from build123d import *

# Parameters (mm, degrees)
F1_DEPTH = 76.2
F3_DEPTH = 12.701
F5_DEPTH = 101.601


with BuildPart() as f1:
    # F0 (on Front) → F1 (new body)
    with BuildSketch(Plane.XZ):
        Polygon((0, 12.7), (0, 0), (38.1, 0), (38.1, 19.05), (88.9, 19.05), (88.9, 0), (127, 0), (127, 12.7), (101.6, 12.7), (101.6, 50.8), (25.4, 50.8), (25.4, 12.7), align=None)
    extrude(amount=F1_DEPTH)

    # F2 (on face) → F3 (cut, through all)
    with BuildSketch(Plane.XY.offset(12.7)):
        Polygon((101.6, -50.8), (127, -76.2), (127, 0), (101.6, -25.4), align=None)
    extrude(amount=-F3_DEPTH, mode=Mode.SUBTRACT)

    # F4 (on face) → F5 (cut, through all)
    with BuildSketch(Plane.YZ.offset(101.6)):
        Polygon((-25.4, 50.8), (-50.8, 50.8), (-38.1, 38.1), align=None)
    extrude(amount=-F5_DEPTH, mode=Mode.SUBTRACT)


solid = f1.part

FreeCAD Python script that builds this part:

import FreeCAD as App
import Part
import Sketcher
from FreeCAD import Vector
Q = App.Units.Quantity

doc = App.newDocument("Part")
body = doc.addObject("PartDesign::Body", "Body")

# Sketch on XZ plane
sketch1 = body.newObject("Sketcher::SketchObject", "Sketch")
sketch1.AttachmentSupport = (doc.getObject("XZ_Plane"), [""])
sketch1.MapMode = "FlatFace"
sketch1.addGeometry(Part.LineSegment(Vector(0, 12.7, 0), Vector(0, 0, 0)), False)
sketch1.addGeometry(Part.LineSegment(Vector(0, 0, 0), Vector(38.1, 0, 0)), False)
sketch1.addGeometry(Part.LineSegment(Vector(38.1, 0, 0), Vector(38.1, 19.05, 0)), False)
sketch1.addGeometry(Part.LineSegment(Vector(38.1, 19.05, 0), Vector(88.9, 19.05, 0)), False)
sketch1.addGeometry(Part.LineSegment(Vector(88.9, 19.05, 0), Vector(88.9, 0, 0)), False)
sketch1.addGeometry(Part.LineSegment(Vector(88.9, 0, 0), Vector(127, 0, 0)), False)
sketch1.addGeometry(Part.LineSegment(Vector(127, 0, 0), Vector(127, 12.7, 0)), False)
sketch1.addGeometry(Part.LineSegment(Vector(127, 12.7, 0), Vector(101.6, 12.7, 0)), False)
sketch1.addGeometry(Part.LineSegment(Vector(101.6, 12.7, 0), Vector(101.6, 50.8, 0)), False)
sketch1.addGeometry(Part.LineSegment(Vector(101.6, 50.8, 0), Vector(25.4, 50.8, 0)), False)
sketch1.addGeometry(Part.LineSegment(Vector(25.4, 50.8, 0), Vector(25.4, 12.7, 0)), False)
sketch1.addGeometry(Part.LineSegment(Vector(25.4, 12.7, 0), Vector(0, 12.7, 0)), False)
sketch1.addConstraint(Sketcher.Constraint("Coincident", 0, 2, 1, 1))
sketch1.addConstraint(Sketcher.Constraint("Coincident", 1, 2, 2, 1))
sketch1.addConstraint(Sketcher.Constraint("Coincident", 2, 2, 3, 1))
sketch1.addConstraint(Sketcher.Constraint("Coincident", 3, 2, 4, 1))
sketch1.addConstraint(Sketcher.Constraint("Coincident", 4, 2, 5, 1))
sketch1.addConstraint(Sketcher.Constraint("Coincident", 5, 2, 6, 1))
sketch1.addConstraint(Sketcher.Constraint("Coincident", 6, 2, 7, 1))
sketch1.addConstraint(Sketcher.Constraint("Coincident", 7, 2, 8, 1))
sketch1.addConstraint(Sketcher.Constraint("Coincident", 8, 2, 9, 1))
sketch1.addConstraint(Sketcher.Constraint("Coincident", 9, 2, 10, 1))
sketch1.addConstraint(Sketcher.Constraint("Coincident", 10, 2, 11, 1))
sketch1.addConstraint(Sketcher.Constraint("Coincident", 11, 2, 0, 1))
sketch1.addConstraint(Sketcher.Constraint("Vertical", 0))
sketch1.addConstraint(Sketcher.Constraint("Horizontal", 1))
sketch1.addConstraint(Sketcher.Constraint("Vertical", 2))
sketch1.addConstraint(Sketcher.Constraint("Horizontal", 3))
sketch1.addConstraint(Sketcher.Constraint("Vertical", 4))
sketch1.addConstraint(Sketcher.Constraint("Horizontal", 5))
sketch1.addConstraint(Sketcher.Constraint("Vertical", 6))
sketch1.addConstraint(Sketcher.Constraint("Horizontal", 7))
sketch1.addConstraint(Sketcher.Constraint("Vertical", 8))
sketch1.addConstraint(Sketcher.Constraint("Horizontal", 9))
sketch1.addConstraint(Sketcher.Constraint("Vertical", 10))
sketch1.addConstraint(Sketcher.Constraint("Horizontal", 11))
sketch1.addConstraint(Sketcher.Constraint("Coincident", 0, 2, -1, 1))
sketch1.addConstraint(Sketcher.Constraint("PointOnObject", 4, 2, -1))
sketch1.addConstraint(Sketcher.Constraint("Horizontal", 7, 2, 10, 2))
sketch1.addConstraint(Sketcher.Constraint("Equal", 1, 5))
sketch1.addConstraint(Sketcher.Constraint("Equal", 7, 11))
sketch1.addConstraint(Sketcher.Constraint("Equal", 5, 8))
sketch1.addConstraint(Sketcher.Constraint("DistanceX", 3, 1, 3, 2, Q("2 in")))
sketch1.addConstraint(Sketcher.Constraint("DistanceX", 7, 2, 7, 1, Q("1 in")))
sketch1.addConstraint(Sketcher.Constraint("DistanceX", 9, 2, 9, 1, Q("3 in")))
sketch1.addConstraint(Sketcher.Constraint("DistanceY", 0, 2, 0, 1, Q("0.5 in")))
sketch1.addConstraint(Sketcher.Constraint("DistanceY", 2, 1, 2, 2, Q("0.75 in")))
pad1 = body.newObject("PartDesign::Pad", "Pad")
pad1.Profile = sketch1
pad1.Length = Q("3 in")

# Sketch on XY plane
sketch2 = body.newObject("Sketcher::SketchObject", "Sketch001")
sketch2.AttachmentSupport = (doc.getObject("XY_Plane"), [""])
sketch2.MapMode = "FlatFace"
sketch2.AttachmentOffset = App.Placement(Vector(0, 0, 0.5 * 25.4), App.Rotation())
sketch2.addGeometry(Part.LineSegment(Vector(101.6, -50.8, 0), Vector(127, -76.2, 0)), False)
sketch2.addGeometry(Part.LineSegment(Vector(127, -76.2, 0), Vector(127, 0, 0)), False)
sketch2.addGeometry(Part.LineSegment(Vector(127, 0, 0), Vector(101.6, -25.4, 0)), False)
sketch2.addGeometry(Part.LineSegment(Vector(101.6, -25.4, 0), Vector(101.6, -50.8, 0)), False)
sketch2.addConstraint(Sketcher.Constraint("Coincident", 0, 2, 1, 1))
sketch2.addConstraint(Sketcher.Constraint("Coincident", 1, 2, 2, 1))
sketch2.addConstraint(Sketcher.Constraint("Coincident", 2, 2, 3, 1))
sketch2.addConstraint(Sketcher.Constraint("Coincident", 3, 2, 0, 1))
sketch2.addConstraint(Sketcher.Constraint("Vertical", 1))
sketch2.addConstraint(Sketcher.Constraint("Vertical", 3))
sketch2.addConstraint(Sketcher.Constraint("PointOnObject", 1, 2, -1))
sketch2.addConstraint(Sketcher.Constraint("Perpendicular", 0, 2))
sketch2.addConstraint(Sketcher.Constraint("Equal", 0, 2))
sketch2.addConstraint(Sketcher.Constraint("DistanceY", 1, 1, 1, 2, Q("3 in")))
sketch2.addConstraint(Sketcher.Constraint("DistanceY", 3, 2, 3, 1, Q("1 in")))
sketch2.addConstraint(Sketcher.Constraint("DistanceX", -1, 1, 0, 2, Q("5 in")))
pocket1 = body.newObject("PartDesign::Pocket", "Pocket")
pocket1.Profile = sketch2
pocket1.Type = "ThroughAll"

# Sketch on YZ plane
sketch3 = body.newObject("Sketcher::SketchObject", "Sketch002")
sketch3.AttachmentSupport = (doc.getObject("YZ_Plane"), [""])
sketch3.MapMode = "FlatFace"
sketch3.AttachmentOffset = App.Placement(Vector(0, 0, 4 * 25.4), App.Rotation())
sketch3.addGeometry(Part.LineSegment(Vector(-25.4, 50.8, 0), Vector(-50.8, 50.8, 0)), False)
sketch3.addGeometry(Part.LineSegment(Vector(-50.8, 50.8, 0), Vector(-38.1, 38.1, 0)), False)
sketch3.addGeometry(Part.LineSegment(Vector(-38.1, 38.1, 0), Vector(-25.4, 50.8, 0)), False)
sketch3.addConstraint(Sketcher.Constraint("Coincident", 0, 2, 1, 1))
sketch3.addConstraint(Sketcher.Constraint("Coincident", 1, 2, 2, 1))
sketch3.addConstraint(Sketcher.Constraint("Coincident", 2, 2, 0, 1))
sketch3.addConstraint(Sketcher.Constraint("Horizontal", 0))
sketch3.addConstraint(Sketcher.Constraint("Perpendicular", 1, 2))
sketch3.addConstraint(Sketcher.Constraint("Equal", 1, 2))
sketch3.addConstraint(Sketcher.Constraint("DistanceX", 0, 2, 0, 1, Q("1 in")))
sketch3.addConstraint(Sketcher.Constraint("DistanceX", 0, 2, -1, 1, Q("2 in")))
sketch3.addConstraint(Sketcher.Constraint("DistanceY", -1, 1, 0, 2, Q("2 in")))
pocket2 = body.newObject("PartDesign::Pocket", "Pocket001")
pocket2.Profile = sketch3
pocket2.Type = "ThroughAll"

doc.recompute()
